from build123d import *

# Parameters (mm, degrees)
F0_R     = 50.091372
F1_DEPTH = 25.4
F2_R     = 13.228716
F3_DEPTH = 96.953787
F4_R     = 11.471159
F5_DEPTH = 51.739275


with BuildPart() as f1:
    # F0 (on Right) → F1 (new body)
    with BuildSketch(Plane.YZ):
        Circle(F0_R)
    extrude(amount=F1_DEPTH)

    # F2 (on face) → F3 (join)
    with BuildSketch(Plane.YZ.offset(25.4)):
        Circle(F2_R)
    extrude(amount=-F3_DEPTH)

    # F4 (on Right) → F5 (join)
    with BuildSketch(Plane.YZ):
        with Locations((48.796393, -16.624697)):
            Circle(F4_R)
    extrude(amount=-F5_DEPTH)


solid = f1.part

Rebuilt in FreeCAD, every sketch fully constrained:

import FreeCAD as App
import Part
import Sketcher
Q = App.Units.Quantity

doc = App.newDocument("Part")
body = doc.addObject("PartDesign::Body", "Body")

# Sketch on YZ plane
sketch1 = body.newObject("Sketcher::SketchObject", "Sketch")
sketch1.AttachmentSupport = (doc.getObject("YZ_Plane"), [""])
sketch1.MapMode = "FlatFace"
sketch1.addGeometry(Part.Circle(App.Vector(0, 0, 0), App.Vector(0, 0, 1), 50), False)
sketch1.addConstraint([
    Sketcher.Constraint("Coincident", 0, 3, -1, 1),
    Sketcher.Constraint("Diameter", 0, Q("100.182744 mm")),
])
pad1 = body.newObject("PartDesign::Pad", "Pad")
pad1.Profile = sketch1
pad1.Length = Q("1 in")

# Sketch on YZ plane
sketch2 = body.newObject("Sketcher::SketchObject", "Sketch001")
sketch2.AttachmentSupport = (doc.getObject("YZ_Plane"), [""])
sketch2.MapMode = "FlatFace"
sketch2.AttachmentOffset = App.Placement(App.Vector(0, 0, 1 * 25.4), App.Rotation())
sketch2.addGeometry(Part.Circle(App.Vector(0, 0, 0), App.Vector(0, 0, 1), 13), False)
sketch2.addConstraint([
    Sketcher.Constraint("Coincident", 0, 3, -1, 1),
    Sketcher.Constraint("Diameter", 0, Q("26.457432 mm")),
])
pad2 = body.newObject("PartDesign::Pad", "Pad001")
pad2.Profile = sketch2
pad2.Length = 96.953787
pad2.Reversed = True

# Sketch on YZ plane
sketch3 = body.newObject("Sketcher::SketchObject", "Sketch002")
sketch3.AttachmentSupport = (doc.getObject("YZ_Plane"), [""])
sketch3.MapMode = "FlatFace"
sketch3.addGeometry(Part.Circle(App.Vector(49, -17, 0), App.Vector(0, 0, 1), 11), False)
sketch3.addConstraint([
    Sketcher.Constraint("Diameter", 0, Q("22.942318 mm")),
    Sketcher.Constraint("DistanceX", -1, 1, 0, 3, Q("48.796393 mm")),
    Sketcher.Constraint("DistanceY", 0, 3, -1, 1, Q("16.624697 mm")),
])
pad3 = body.newObject("PartDesign::Pad", "Pad002")
pad3.Profile = sketch3
pad3.Length = 51.739275
pad3.Reversed = True

doc.recompute()
